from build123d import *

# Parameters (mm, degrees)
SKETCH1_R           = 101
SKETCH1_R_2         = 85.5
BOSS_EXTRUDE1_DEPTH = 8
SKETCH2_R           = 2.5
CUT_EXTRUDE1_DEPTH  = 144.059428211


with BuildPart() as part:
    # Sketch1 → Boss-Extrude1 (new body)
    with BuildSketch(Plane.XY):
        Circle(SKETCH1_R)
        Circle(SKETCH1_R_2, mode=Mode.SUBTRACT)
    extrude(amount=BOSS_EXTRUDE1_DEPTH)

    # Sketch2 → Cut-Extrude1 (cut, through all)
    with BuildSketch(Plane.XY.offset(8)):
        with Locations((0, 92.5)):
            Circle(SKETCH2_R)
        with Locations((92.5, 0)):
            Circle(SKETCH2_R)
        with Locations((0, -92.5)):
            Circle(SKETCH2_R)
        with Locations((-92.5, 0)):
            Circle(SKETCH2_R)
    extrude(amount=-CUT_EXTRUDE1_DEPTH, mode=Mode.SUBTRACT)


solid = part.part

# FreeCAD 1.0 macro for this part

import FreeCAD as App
import Part
import Sketcher

doc = App.newDocument("Part")
params = doc.addObject("Spreadsheet::Sheet", "Params")
for row, (alias, value) in enumerate([
    ("sketch1_diameter", "202 mm"),
    ("sketch1_diameter2", "171 mm"),
    ("pad1_length", "8 mm"),
    ("sketch2_diameter", "5 mm"),
], start=1):
    params.set(f"A{row}", alias)
    params.set(f"B{row}", "=" + value)
    params.setAlias(f"B{row}", alias)

body = doc.addObject("PartDesign::Body", "Body")

# Sketch on XY plane
sketch1 = body.newObject("Sketcher::SketchObject", "Sketch")
sketch1.AttachmentSupport = (doc.getObject("XY_Plane"), [""])
sketch1.MapMode = "FlatFace"
sketch1.addGeometry(Part.Circle(App.Vector(0, 0, 0), App.Vector(0, 0, 1), 101), False)
sketch1.addGeometry(Part.Circle(App.Vector(0, 0, 0), App.Vector(0, 0, 1), 86), False)
sketch1.addConstraint(Sketcher.Constraint("Coincident", 0, 3, -1, 1))
sketch1.addConstraint(Sketcher.Constraint("Coincident", 1, 3, -1, 1))
sketch1.addConstraint(Sketcher.Constraint("Diameter", 0, 202.0))
sketch1.addConstraint(Sketcher.Constraint("Diameter", 1, 171.0))
sketch1.setExpression("Constraints[2]", "Params.sketch1_diameter")
sketch1.setExpression("Constraints[3]", "Params.sketch1_diameter2")
pad1 = body.newObject("PartDesign::Pad", "Pad")
pad1.Profile = sketch1
pad1.setExpression("Length", "Params.pad1_length")

# Sketch on XY plane
sketch2 = body.newObject("Sketcher::SketchObject", "Sketch001")
sketch2.AttachmentSupport = (doc.getObject("XY_Plane"), [""])
sketch2.MapMode = "FlatFace"
sketch2.AttachmentOffset = App.Placement(App.Vector(0, 0, 8), App.Rotation())
sketch2.addGeometry(Part.Circle(App.Vector(0, 92.5, 0), App.Vector(0, 0, 1), 2.5), False)
sketch2.addGeometry(Part.Circle(App.Vector(92.5, 0, 0), App.Vector(0, 0, 1), 2.5), False)
sketch2.addGeometry(Part.Circle(App.Vector(0, -92.5, 0), App.Vector(0, 0, 1), 2.5), False)
sketch2.addGeometry(Part.Circle(App.Vector(-92.5, 0, 0), App.Vector(0, 0, 1), 2.5), False)
sketch2.addConstraint(Sketcher.Constraint("Equal", 0, 1))
sketch2.addConstraint(Sketcher.Constraint("Equal", 1, 2))
sketch2.addConstraint(Sketcher.Constraint("Equal", 2, 3))
sketch2.addConstraint(Sketcher.Constraint("Symmetric", 0, 3, 2, 3, -1, 1))
sketch2.addConstraint(Sketcher.Constraint("Symmetric", 1, 3, 3, 3, -1, 1))
sketch2.addConstraint(Sketcher.Constraint("PointOnObject", 0, 3, -2))
sketch2.addConstraint(Sketcher.Constraint("PointOnObject", 1, 3, -1))
sketch2.addConstraint(Sketcher.Constraint("Diameter", 0, 5.0))
sketch2.addConstraint(Sketcher.Constraint("DistanceY", 2, 3, 0, 3, 185.0))
sketch2.addConstraint(Sketcher.Constraint("DistanceX", 3, 3, 1, 3, 185.0))
sketch2.setExpression("Constraints[7]", "Params.sketch2_diameter")
pocket1 = body.newObject("PartDesign::Pocket", "Pocket")
pocket1.Profile = sketch2
pocket1.Type = "ThroughAll"

doc.recompute()
